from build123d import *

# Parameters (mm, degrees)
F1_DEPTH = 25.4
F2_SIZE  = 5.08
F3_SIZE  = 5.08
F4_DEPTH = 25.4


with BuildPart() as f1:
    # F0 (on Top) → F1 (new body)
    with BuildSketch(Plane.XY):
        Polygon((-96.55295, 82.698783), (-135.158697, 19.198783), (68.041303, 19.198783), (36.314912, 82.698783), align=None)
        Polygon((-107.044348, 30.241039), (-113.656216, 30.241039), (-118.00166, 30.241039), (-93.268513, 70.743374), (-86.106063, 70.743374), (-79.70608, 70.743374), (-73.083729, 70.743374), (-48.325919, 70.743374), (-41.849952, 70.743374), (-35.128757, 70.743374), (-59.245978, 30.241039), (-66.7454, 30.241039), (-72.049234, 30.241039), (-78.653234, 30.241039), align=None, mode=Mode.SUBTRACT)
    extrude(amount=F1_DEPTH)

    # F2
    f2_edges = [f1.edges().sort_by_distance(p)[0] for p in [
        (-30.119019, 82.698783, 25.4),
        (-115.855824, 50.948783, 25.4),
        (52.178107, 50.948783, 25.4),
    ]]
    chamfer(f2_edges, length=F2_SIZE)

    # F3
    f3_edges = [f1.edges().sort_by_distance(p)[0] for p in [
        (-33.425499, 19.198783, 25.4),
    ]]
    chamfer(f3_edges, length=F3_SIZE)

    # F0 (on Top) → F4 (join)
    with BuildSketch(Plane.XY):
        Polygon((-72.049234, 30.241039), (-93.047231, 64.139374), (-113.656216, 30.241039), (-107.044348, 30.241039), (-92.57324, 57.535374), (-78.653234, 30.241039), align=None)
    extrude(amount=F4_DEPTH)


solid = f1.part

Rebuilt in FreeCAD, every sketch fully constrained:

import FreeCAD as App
import Part
import Sketcher
from FreeCAD import Vector
Q = App.Units.Quantity


def edges_at(feature, points):
    """Names of the edges that pass closest to the given points."""
    edges = feature.Shape.Edges
    near = lambda p: min(range(len(edges)), key=lambda i: edges[i].distToShape(Part.Vertex(*p))[0])
    return sorted({f"Edge{near(p) + 1}" for p in points})

doc = App.newDocument("Part")
body = doc.addObject("PartDesign::Body", "Body")

sketch1 = body.newObject("Sketcher::SketchObject", "Sketch")
sketch1.AttachmentSupport = (doc.getObject("XY_Plane"), [""])
sketch1.MapMode = "FlatFace"
sketch1.addGeometry([
    Part.LineSegment(Vector(-97, 83, 0), Vector(-135, 19, 0)),
    Part.LineSegment(Vector(-135, 19, 0), Vector(68, 19, 0)),
    Part.LineSegment(Vector(68, 19, 0), Vector(36, 83, 0)),
    Part.LineSegment(Vector(36, 83, 0), Vector(-97, 83, 0)),
    Part.LineSegment(Vector(-59, 30, 0), Vector(-118, 30, 0)),
    Part.LineSegment(Vector(-118, 30, 0), Vector(-93, 71, 0)),
    Part.LineSegment(Vector(-93, 71, 0), Vector(-35, 71, 0)),
    Part.LineSegment(Vector(-35, 71, 0), Vector(-59, 30, 0)),
], False)
sketch1.addConstraint([
    Sketcher.Constraint("Coincident", 0, 2, 1, 1),
    Sketcher.Constraint("Coincident", 1, 2, 2, 1),
    Sketcher.Constraint("Coincident", 2, 2, 3, 1),
    Sketcher.Constraint("Coincident", 3, 2, 0, 1),
    Sketcher.Constraint("Coincident", 4, 2, 5, 1),
    Sketcher.Constraint("Coincident", 5, 2, 6, 1),
    Sketcher.Constraint("Coincident", 6, 2, 7, 1),
    Sketcher.Constraint("Coincident", 7, 2, 4, 1),
    Sketcher.Constraint("Horizontal", 1),
    Sketcher.Constraint("Horizontal", 3),
    Sketcher.Constraint("Horizontal", 4),
    Sketcher.Constraint("Horizontal", 6),
    Sketcher.Constraint("DistanceX", 1, 1, 1, 2, Q("8 in")),
    Sketcher.Constraint("DistanceY", 1, 2, 2, 2, Q("2.5 in")),
    Sketcher.Constraint("DistanceX", 3, 2, 3, 1, 132.867862),
    Sketcher.Constraint("Distance", 0, 74.314559),
    Sketcher.Constraint("Distance", 5, 47.457009),
    Sketcher.Constraint("Distance", 7, 47.138938),
    Sketcher.Constraint("DistanceX", 4, 2, 4, 1, 58.755682),
    Sketcher.Constraint("DistanceX", 6, 1, 6, 2, 58.139756),
    Sketcher.Constraint("DistanceX", 3, 2, -1, 1, 96.55295),
    Sketcher.Constraint("DistanceX", 4, 2, -1, 1, 118.00166),
    Sketcher.Constraint("DistanceY", -1, 1, 4, 2, 30.241039),
    Sketcher.Constraint("DistanceY", 5, 2, 3, 2, 11.955409),
])
pad1 = body.newObject("PartDesign::Pad", "Pad")
pad1.Profile = sketch1
pad1.Length = Q("1 in")
doc.recompute()

chamfer = body.newObject("PartDesign::Chamfer", "Chamfer")
chamfer.Base = (pad1, edges_at(pad1, [(-30.119, 82.699, 25.4), (-115.856, 50.949, 25.4), (52.178, 50.949, 25.4)]))
chamfer.Size = Q("0.2 in")
doc.recompute()

chamfer2 = body.newObject("PartDesign::Chamfer", "Chamfer001")
chamfer2.Base = (chamfer, edges_at(chamfer, [(-33.425, 19.199, 25.4)]))
chamfer2.Size = Q("0.2 in")

sketch2 = body.newObject("Sketcher::SketchObject", "Sketch001")
sketch2.AttachmentSupport = (doc.getObject("XY_Plane"), [""])
sketch2.MapMode = "FlatFace"
sketch2.addGeometry([
    Part.LineSegment(Vector(-72, 30, 0), Vector(-93, 64, 0)),
    Part.LineSegment(Vector(-93, 64, 0), Vector(-114, 30, 0)),
    Part.LineSegment(Vector(-114, 30, 0), Vector(-107, 30, 0)),
    Part.LineSegment(Vector(-107, 30, 0), Vector(-93, 58, 0)),
    Part.LineSegment(Vector(-93, 58, 0), Vector(-79, 30, 0)),
    Part.LineSegment(Vector(-79, 30, 0), Vector(-72, 30, 0)),
], False)
sketch2.addConstraint([
    Sketcher.Constraint("Coincident", 0, 2, 1, 1),
    Sketcher.Constraint("Coincident", 1, 2, 2, 1),
    Sketcher.Constraint("Coincident", 2, 2, 3, 1),
    Sketcher.Constraint("Coincident", 3, 2, 4, 1),
    Sketcher.Constraint("Coincident", 4, 2, 5, 1),
    Sketcher.Constraint("Coincident", 5, 2, 0, 1),
    Sketcher.Constraint("Horizontal", 2),
    Sketcher.Constraint("Horizontal", 5),
    Sketcher.Constraint("Horizontal", 2, 2, 4, 2),
    Sketcher.Constraint("DistanceX", 5, 1, 5, 2, Q("0.26 in")),
    Sketcher.Constraint("DistanceY", 3, 2, 0, 2, Q("0.26 in")),
    Sketcher.Constraint("DistanceX", 2, 1, 2, 2, 6.611868),
    Sketcher.Constraint("DistanceX", 0, 2, -1, 1, 93.047231),
    Sketcher.Constraint("DistanceY", -1, 1, 1, 2, 30.241039),
    Sketcher.Constraint("DistanceX", 2, 2, -1, 1, 107.044348),
    Sketcher.Constraint("DistanceX", 3, 2, -1, 1, 92.57324),
    Sketcher.Constraint("Distance", 0, 39.874967),
    Sketcher.Constraint("Distance", 1, 39.671493),
])
pad2 = body.newObject("PartDesign::Pad", "Pad001")
pad2.Profile = sketch2
pad2.Length = Q("1 in")

doc.recompute()
